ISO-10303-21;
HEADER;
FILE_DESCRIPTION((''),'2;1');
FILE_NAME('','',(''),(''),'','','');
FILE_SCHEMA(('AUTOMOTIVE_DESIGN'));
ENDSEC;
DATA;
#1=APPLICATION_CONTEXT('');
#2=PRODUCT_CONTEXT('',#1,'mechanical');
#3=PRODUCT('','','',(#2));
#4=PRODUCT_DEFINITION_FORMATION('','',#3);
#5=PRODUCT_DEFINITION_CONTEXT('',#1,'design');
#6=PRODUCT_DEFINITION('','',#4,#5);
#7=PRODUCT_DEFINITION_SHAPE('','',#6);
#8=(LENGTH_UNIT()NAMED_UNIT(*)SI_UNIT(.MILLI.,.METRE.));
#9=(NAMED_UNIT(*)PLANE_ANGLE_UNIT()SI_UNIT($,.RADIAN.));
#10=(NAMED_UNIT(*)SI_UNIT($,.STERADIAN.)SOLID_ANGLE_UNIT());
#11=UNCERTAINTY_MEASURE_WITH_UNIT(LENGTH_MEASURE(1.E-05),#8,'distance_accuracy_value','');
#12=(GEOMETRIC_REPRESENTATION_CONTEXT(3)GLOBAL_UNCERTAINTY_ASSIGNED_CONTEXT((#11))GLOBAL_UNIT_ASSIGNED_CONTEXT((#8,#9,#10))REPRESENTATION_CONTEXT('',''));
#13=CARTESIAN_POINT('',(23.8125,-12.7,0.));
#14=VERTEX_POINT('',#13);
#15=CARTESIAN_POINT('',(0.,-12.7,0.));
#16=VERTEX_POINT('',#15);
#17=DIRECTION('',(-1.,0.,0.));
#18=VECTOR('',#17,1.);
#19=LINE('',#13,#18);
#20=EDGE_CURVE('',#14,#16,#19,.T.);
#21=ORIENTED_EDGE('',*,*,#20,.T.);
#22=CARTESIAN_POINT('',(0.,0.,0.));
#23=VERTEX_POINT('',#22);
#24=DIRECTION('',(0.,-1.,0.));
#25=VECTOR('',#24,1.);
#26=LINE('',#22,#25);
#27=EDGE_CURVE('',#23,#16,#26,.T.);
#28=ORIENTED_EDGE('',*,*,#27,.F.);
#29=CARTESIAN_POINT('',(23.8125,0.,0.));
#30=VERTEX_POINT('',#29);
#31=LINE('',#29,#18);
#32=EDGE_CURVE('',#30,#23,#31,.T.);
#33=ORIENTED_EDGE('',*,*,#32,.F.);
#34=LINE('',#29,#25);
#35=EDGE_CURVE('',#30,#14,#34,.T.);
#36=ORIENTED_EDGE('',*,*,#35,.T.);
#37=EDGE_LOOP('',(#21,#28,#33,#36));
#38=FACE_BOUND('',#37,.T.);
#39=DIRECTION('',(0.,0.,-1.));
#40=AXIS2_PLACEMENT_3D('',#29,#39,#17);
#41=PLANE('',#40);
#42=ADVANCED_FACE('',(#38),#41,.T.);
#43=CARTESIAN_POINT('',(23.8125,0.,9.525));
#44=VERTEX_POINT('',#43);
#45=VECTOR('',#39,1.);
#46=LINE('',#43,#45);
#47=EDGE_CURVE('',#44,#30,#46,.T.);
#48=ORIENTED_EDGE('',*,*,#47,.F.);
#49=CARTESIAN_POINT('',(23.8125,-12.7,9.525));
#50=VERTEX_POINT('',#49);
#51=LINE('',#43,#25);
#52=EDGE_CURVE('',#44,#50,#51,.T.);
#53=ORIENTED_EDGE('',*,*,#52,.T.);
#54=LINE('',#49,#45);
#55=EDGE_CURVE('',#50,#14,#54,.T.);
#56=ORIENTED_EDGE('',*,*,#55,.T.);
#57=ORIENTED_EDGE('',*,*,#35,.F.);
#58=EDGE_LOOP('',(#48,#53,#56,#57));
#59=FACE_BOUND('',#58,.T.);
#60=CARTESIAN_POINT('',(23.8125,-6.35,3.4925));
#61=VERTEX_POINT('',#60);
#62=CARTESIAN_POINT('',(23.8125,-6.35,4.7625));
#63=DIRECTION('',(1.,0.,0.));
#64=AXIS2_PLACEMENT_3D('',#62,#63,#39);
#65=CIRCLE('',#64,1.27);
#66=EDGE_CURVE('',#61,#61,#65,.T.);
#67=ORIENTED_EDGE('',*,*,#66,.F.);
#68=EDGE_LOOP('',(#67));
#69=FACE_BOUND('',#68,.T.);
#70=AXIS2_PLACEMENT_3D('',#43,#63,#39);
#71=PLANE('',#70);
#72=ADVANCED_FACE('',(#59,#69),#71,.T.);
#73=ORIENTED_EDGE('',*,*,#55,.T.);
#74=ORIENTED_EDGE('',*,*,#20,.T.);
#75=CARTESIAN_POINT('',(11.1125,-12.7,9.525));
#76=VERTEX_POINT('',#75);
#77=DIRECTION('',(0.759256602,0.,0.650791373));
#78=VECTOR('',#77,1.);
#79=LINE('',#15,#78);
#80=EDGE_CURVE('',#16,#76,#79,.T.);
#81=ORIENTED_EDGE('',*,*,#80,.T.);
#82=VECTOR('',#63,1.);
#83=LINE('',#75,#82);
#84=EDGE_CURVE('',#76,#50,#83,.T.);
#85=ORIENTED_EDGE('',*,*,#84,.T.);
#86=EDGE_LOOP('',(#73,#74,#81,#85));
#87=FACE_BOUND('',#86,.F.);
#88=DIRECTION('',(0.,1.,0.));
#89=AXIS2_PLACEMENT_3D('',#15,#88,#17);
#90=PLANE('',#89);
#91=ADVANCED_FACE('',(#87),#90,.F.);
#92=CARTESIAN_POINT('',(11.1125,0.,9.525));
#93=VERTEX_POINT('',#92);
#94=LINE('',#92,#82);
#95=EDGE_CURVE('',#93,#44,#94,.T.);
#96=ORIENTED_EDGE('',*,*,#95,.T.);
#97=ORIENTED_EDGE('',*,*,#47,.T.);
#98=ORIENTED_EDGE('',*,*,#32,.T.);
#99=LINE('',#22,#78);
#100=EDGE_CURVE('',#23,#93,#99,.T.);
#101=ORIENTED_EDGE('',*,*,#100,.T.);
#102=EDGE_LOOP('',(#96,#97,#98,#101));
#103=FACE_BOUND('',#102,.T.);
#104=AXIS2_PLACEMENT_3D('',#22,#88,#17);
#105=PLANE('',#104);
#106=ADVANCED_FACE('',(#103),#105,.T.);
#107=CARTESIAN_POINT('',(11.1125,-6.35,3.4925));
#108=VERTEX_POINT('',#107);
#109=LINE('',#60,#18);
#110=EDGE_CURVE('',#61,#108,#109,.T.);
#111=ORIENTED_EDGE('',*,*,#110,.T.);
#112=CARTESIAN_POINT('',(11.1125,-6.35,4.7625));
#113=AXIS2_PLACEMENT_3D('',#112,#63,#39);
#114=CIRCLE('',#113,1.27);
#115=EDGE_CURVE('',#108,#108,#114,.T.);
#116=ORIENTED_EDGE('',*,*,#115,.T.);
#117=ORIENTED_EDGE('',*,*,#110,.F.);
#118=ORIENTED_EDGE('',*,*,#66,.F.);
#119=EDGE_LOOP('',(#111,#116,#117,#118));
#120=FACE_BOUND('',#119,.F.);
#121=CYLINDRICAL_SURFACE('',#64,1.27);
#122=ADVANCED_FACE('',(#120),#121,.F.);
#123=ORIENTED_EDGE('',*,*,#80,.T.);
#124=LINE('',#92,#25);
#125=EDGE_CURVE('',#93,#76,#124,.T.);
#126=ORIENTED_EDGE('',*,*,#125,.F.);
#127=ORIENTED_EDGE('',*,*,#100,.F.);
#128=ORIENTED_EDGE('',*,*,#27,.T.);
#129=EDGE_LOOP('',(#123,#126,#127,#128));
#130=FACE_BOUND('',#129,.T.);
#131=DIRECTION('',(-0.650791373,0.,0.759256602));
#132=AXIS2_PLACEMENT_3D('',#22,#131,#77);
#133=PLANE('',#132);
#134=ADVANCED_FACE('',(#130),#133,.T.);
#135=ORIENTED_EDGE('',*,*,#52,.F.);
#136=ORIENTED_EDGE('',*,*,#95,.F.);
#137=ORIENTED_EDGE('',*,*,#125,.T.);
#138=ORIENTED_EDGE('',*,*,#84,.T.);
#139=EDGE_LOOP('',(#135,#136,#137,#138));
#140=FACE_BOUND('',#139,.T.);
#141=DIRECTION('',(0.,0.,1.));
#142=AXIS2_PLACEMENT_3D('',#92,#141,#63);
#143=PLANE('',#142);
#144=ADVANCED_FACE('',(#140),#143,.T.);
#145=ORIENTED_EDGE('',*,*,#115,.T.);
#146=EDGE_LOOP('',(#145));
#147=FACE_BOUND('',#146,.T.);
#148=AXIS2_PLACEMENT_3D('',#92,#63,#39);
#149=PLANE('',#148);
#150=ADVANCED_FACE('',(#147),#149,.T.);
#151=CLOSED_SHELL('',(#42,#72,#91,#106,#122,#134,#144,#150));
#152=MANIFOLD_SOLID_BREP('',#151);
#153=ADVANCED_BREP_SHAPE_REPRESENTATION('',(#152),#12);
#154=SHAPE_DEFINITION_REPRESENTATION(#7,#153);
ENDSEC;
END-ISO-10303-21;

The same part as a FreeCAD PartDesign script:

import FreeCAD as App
import Part
import Sketcher

V = App.Vector
Q = App.Units.Quantity


def add_polygon(sketch, points):
    """Adds a closed chain of lines whose ends are joined by coincident constraints."""
    first, n = sketch.GeometryCount, len(points)
    for a, b in zip(points, points[1:] + points[:1]):
        sketch.addGeometry(Part.LineSegment(App.Vector(*a, 0), App.Vector(*b, 0)), False)
    for i in range(n):
        sketch.addConstraint(Sketcher.Constraint("Coincident", first + i, 2, first + (i + 1) % n, 1))

doc = App.newDocument("Part")
body = doc.addObject("PartDesign::Body", "Body")

# Sketch on XZ plane
sketch1 = body.newObject("Sketcher::SketchObject", "Sketch")
sketch1.AttachmentSupport = (doc.getObject("XZ_Plane"), [""])
sketch1.MapMode = "FlatFace"
add_polygon(sketch1, [(24, 0), (0, 0), (11, 10), (24, 10)])  # lines 0-3
sketch1.addConstraint(Sketcher.Constraint("Horizontal", 0))
sketch1.addConstraint(Sketcher.Constraint("Horizontal", 2))
sketch1.addConstraint(Sketcher.Constraint("Vertical", 3))
sketch1.addConstraint(Sketcher.Constraint("Coincident", 0, 2, -1, 1))
sketch1.addConstraint(Sketcher.Constraint("DistanceX", 2, 1, 2, 2, Q("0.5 in")))
sketch1.addConstraint(Sketcher.Constraint("DistanceY", 3, 2, 3, 1, Q("0.375 in")))
sketch1.addConstraint(Sketcher.Constraint("DistanceX", -1, 1, 1, 2, Q("0.4375 in")))
pad1 = body.newObject("PartDesign::Pad", "Pad")
pad1.Profile = sketch1
pad1.Length = Q("0.5 in")

# Sketch on YZ plane
sketch2 = body.newObject("Sketcher::SketchObject", "Sketch001")
sketch2.AttachmentSupport = (doc.getObject("YZ_Plane"), [""])
sketch2.MapMode = "FlatFace"
sketch2.AttachmentOffset = App.Placement(V(0, 0, 0.9375 * 25.4), App.Rotation())
sketch2.addGeometry(Part.Circle(V(-6.3, 4.8, 0), V(0, 0, 1), 1.3), False)
sketch2.addConstraint(Sketcher.Constraint("Diameter", 0, Q("0.1 in")))
sketch2.addConstraint(Sketcher.Constraint("DistanceX", 0, 3, -1, 1, Q("0.25 in")))
sketch2.addConstraint(Sketcher.Constraint("DistanceY", -1, 1, 0, 3, Q("0.1875 in")))
pocket1 = body.newObject("PartDesign::Pocket", "Pocket")
pocket1.Profile = sketch2
pocket1.Length = Q("0.5 in")

doc.recompute()
